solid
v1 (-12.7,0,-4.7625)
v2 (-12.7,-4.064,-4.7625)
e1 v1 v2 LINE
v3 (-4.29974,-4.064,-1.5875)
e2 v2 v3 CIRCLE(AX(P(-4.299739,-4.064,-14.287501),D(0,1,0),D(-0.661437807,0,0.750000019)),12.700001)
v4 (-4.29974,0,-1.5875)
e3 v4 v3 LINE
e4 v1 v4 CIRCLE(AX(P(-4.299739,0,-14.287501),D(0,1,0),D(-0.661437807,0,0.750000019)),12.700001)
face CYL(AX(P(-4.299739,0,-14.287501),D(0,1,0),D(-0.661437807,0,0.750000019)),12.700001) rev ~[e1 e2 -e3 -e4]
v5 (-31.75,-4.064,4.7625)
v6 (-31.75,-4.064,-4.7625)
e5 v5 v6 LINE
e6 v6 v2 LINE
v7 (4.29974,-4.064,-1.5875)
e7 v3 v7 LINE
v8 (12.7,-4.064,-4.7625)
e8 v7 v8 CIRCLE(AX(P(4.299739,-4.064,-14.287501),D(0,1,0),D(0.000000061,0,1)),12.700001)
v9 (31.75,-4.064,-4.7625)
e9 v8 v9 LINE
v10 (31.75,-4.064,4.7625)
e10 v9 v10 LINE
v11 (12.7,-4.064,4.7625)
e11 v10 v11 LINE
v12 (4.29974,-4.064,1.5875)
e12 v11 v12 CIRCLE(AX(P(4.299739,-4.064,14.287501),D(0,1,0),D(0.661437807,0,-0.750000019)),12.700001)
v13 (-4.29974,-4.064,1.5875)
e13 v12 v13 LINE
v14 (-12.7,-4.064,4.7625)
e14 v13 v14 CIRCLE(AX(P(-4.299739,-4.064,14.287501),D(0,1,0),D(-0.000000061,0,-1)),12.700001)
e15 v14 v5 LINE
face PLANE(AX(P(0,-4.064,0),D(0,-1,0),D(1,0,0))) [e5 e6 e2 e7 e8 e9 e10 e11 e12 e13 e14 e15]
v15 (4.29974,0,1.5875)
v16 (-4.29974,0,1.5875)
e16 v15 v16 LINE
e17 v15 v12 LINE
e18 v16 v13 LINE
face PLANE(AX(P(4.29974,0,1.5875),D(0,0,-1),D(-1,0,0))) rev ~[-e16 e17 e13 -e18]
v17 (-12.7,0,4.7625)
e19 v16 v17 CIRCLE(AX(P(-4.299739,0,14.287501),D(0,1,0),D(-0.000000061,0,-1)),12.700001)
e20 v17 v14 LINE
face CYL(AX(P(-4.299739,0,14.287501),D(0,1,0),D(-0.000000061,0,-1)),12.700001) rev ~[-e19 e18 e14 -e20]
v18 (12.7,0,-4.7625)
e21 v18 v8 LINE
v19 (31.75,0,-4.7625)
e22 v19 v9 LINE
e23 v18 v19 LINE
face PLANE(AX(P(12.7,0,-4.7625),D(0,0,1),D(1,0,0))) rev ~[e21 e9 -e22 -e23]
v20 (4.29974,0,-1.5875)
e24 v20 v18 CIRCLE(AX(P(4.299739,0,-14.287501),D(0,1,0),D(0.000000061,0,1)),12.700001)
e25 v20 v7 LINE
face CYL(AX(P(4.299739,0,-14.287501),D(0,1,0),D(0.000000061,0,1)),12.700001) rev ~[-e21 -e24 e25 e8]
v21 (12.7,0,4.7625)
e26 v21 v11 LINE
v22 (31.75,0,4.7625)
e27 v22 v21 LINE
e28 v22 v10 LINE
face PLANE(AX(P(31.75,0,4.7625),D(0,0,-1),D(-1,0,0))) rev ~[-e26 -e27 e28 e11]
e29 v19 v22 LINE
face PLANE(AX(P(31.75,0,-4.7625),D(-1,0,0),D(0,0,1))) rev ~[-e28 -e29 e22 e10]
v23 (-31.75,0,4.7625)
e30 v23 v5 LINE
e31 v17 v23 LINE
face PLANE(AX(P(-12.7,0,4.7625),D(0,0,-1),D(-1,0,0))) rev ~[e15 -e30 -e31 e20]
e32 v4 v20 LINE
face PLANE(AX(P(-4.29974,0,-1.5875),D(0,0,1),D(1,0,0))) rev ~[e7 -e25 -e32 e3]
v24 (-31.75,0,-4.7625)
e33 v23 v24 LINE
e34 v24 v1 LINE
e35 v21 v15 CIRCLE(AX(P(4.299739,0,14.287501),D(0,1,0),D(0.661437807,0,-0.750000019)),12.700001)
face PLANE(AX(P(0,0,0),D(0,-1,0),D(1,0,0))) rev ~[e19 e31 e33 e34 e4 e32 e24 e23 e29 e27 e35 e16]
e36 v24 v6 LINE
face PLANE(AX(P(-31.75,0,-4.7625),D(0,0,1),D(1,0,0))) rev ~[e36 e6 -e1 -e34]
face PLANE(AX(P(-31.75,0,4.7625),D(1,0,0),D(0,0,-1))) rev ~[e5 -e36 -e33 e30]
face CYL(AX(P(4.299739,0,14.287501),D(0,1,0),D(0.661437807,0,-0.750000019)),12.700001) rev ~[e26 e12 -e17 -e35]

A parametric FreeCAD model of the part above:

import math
import FreeCAD as App
import Part
import Sketcher
from FreeCAD import Vector
Q = App.Units.Quantity

doc = App.newDocument("Part")
body = doc.addObject("PartDesign::Body", "Body")

sketch1 = body.newObject("Sketcher::SketchObject", "Sketch")
sketch1.AttachmentSupport = (doc.getObject("XZ_Plane"), [""])
sketch1.MapMode = "FlatFace"
sketch1.addGeometry([
    Part.LineSegment(Vector(4.29974, 1.5875, 0), Vector(-4.29974, 1.5875, 0)),
    Part.ArcOfCircle(Part.Circle(Vector(-4.299739, 14.287501, 0), Vector(0, 0, 1), 12.700001), math.radians(-131.40962), math.radians(-90.000003)),
    Part.LineSegment(Vector(-12.7, 4.7625, 0), Vector(-31.75, 4.7625, 0)),
    Part.LineSegment(Vector(-31.75, 4.7625, 0), Vector(-31.75, -4.7625, 0)),
    Part.LineSegment(Vector(-31.75, -4.7625, 0), Vector(-12.7, -4.7625, 0)),
    Part.ArcOfCircle(Part.Circle(Vector(-4.299739, -14.287501, 0), Vector(0, 0, 1), 12.700001), math.radians(90.000003), math.radians(131.40962)),
    Part.LineSegment(Vector(-4.29974, -1.5875, 0), Vector(4.29974, -1.5875, 0)),
    Part.ArcOfCircle(Part.Circle(Vector(4.299739, -14.287501, 0), Vector(0, 0, 1), 12.700001), math.radians(48.59038), math.radians(89.999997)),
    Part.LineSegment(Vector(12.7, -4.7625, 0), Vector(31.75, -4.7625, 0)),
    Part.LineSegment(Vector(31.75, -4.7625, 0), Vector(31.75, 4.7625, 0)),
    Part.LineSegment(Vector(31.75, 4.7625, 0), Vector(12.7, 4.7625, 0)),
    Part.ArcOfCircle(Part.Circle(Vector(4.299739, 14.287501, 0), Vector(0, 0, 1), 12.700001), math.radians(-89.999997), math.radians(-48.59038)),
], False)
sketch1.addConstraint([
    Sketcher.Constraint("Tangent", 0, 2, 1, 2),
    Sketcher.Constraint("Coincident", 1, 1, 2, 1),
    Sketcher.Constraint("Coincident", 2, 2, 3, 1),
    Sketcher.Constraint("Coincident", 3, 2, 4, 1),
    Sketcher.Constraint("Coincident", 4, 2, 5, 2),
    Sketcher.Constraint("Tangent", 5, 1, 6, 1),
    Sketcher.Constraint("Tangent", 6, 2, 7, 2),
    Sketcher.Constraint("Coincident", 7, 1, 8, 1),
    Sketcher.Constraint("Coincident", 8, 2, 9, 1),
    Sketcher.Constraint("Coincident", 9, 2, 10, 1),
    Sketcher.Constraint("Coincident", 10, 2, 11, 2),
    Sketcher.Constraint("Tangent", 11, 1, 0, 1),
    Sketcher.Constraint("Horizontal", 0),
    Sketcher.Constraint("Horizontal", 2),
    Sketcher.Constraint("Vertical", 3),
    Sketcher.Constraint("Horizontal", 4),
    Sketcher.Constraint("Horizontal", 6),
    Sketcher.Constraint("Horizontal", 8),
    Sketcher.Constraint("Vertical", 9),
    Sketcher.Constraint("Horizontal", 10),
    Sketcher.Constraint("Equal", 1, 5),
    Sketcher.Constraint("Equal", 5, 7),
    Sketcher.Constraint("Equal", 7, 11),
    Sketcher.Constraint("Symmetric", 1, 3, 7, 3, -1, 1),
    Sketcher.Constraint("Symmetric", 2, 2, 8, 2, -1, 1),
    Sketcher.Constraint("Symmetric", 4, 2, 10, 2, -1, 1),
    Sketcher.Constraint("Symmetric", 4, 2, 7, 1, -2),
    Sketcher.Constraint("Radius", 1, Q("0.5 in")),
    Sketcher.Constraint("DistanceX", 2, 2, 2, 1, Q("0.75 in")),
    Sketcher.Constraint("DistanceX", 1, 1, -1, 1, Q("0.5 in")),
    Sketcher.Constraint("DistanceY", 3, 2, 3, 1, Q("0.375 in")),
    Sketcher.Constraint("DistanceY", 5, 3, 1, 1, Q("0.75 in")),
])
pad1 = body.newObject("PartDesign::Pad", "Pad")
pad1.Profile = sketch1
pad1.Length = Q("0.16 in")

doc.recompute()
